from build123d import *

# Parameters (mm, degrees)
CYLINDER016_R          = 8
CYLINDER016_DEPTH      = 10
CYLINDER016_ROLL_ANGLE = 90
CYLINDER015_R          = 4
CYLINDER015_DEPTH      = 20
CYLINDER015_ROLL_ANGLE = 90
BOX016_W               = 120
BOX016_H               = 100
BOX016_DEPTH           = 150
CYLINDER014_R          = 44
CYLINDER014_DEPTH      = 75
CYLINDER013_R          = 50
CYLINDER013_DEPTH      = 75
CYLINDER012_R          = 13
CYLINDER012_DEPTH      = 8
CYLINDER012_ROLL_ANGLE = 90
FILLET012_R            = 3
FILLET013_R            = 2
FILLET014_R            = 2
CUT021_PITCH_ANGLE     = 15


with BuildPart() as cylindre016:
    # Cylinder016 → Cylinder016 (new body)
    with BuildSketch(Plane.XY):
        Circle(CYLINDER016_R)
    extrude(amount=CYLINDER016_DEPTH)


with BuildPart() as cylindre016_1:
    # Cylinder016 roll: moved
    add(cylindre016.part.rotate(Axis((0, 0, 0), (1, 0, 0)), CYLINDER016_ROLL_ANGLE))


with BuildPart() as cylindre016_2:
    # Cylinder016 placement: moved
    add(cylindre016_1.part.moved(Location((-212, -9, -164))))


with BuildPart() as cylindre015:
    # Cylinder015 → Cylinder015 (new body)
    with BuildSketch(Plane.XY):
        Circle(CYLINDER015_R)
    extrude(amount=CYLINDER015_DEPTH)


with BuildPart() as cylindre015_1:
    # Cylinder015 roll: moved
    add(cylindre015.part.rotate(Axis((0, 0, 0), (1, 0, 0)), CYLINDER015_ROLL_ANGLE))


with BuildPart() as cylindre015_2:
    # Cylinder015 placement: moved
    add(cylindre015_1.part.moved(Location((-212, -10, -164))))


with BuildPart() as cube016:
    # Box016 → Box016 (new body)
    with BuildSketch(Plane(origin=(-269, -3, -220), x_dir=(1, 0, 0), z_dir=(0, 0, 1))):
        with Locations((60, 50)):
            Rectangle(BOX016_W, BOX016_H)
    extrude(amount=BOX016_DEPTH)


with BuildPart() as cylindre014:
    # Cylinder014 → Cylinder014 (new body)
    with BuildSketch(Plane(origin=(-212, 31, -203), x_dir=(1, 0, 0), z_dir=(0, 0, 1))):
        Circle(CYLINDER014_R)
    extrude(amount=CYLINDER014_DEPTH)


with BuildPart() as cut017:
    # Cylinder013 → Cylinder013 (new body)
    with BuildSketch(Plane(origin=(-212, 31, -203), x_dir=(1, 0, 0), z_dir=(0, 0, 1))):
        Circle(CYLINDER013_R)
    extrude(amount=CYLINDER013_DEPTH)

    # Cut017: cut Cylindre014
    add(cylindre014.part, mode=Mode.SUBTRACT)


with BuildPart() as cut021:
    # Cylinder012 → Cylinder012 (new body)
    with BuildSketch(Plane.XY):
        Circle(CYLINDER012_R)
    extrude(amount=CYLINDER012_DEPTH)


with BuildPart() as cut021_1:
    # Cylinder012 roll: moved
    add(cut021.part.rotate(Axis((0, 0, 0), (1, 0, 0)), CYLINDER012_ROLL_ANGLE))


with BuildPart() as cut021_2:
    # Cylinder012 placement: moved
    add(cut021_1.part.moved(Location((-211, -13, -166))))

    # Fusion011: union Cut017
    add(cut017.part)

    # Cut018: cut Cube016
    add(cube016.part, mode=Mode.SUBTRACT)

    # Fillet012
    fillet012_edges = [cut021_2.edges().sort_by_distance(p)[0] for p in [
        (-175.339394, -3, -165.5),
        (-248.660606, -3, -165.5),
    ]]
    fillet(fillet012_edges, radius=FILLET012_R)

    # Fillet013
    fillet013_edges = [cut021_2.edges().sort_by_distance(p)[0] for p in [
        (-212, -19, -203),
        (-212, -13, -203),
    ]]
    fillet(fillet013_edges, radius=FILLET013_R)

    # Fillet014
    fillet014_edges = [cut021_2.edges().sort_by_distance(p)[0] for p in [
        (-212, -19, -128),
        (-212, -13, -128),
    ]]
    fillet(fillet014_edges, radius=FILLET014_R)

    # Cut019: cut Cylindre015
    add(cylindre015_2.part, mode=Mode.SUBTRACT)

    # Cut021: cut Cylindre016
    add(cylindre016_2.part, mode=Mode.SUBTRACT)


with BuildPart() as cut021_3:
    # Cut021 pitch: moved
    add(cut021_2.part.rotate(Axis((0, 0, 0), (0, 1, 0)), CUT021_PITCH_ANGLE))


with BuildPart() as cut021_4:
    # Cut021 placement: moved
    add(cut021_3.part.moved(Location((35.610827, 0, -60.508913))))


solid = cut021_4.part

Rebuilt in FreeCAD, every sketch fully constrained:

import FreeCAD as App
import Part
import Sketcher
Q = App.Units.Quantity


def edges_at(feature, points):
    """Names of the edges that pass closest to the given points."""
    edges = feature.Shape.Edges
    near = lambda p: min(range(len(edges)), key=lambda i: edges[i].distToShape(Part.Vertex(*p))[0])
    return sorted({f"Edge{near(p) + 1}" for p in points})


def add_polygon(sketch, points):
    """Adds a closed chain of lines whose ends are joined by coincident constraints."""
    first, n = sketch.GeometryCount, len(points)
    for a, b in zip(points, points[1:] + points[:1]):
        sketch.addGeometry(Part.LineSegment(App.Vector(*a, 0), App.Vector(*b, 0)), False)
    for i in range(n):
        sketch.addConstraint(Sketcher.Constraint("Coincident", first + i, 2, first + (i + 1) % n, 1))

doc = App.newDocument("Part")
body = doc.addObject("PartDesign::Body", "Body")

# Sketch on XY plane
sketch1 = body.newObject("Sketcher::SketchObject", "Sketch")
sketch1.AttachmentSupport = (doc.getObject("XY_Plane"), [""])
sketch1.MapMode = "FlatFace"
sketch1.addGeometry(Part.Circle(App.Vector(0, 0, 0), App.Vector(0, 0, 1), 8), False)
sketch1.addConstraint([
    Sketcher.Constraint("Coincident", 0, 3, -1, 1),
    Sketcher.Constraint("Diameter", 0, Q("16 mm")),
])
pad1 = body.newObject("PartDesign::Pad", "Pad")
pad1.Profile = sketch1
pad1.Length = 10
body2 = doc.addObject("PartDesign::Body", "Body001")
doc.recompute()

body.Placement = App.Placement(App.Vector(0, 0, 0), App.Rotation(App.Vector(1, 0, 0), 90))
boolean = body2.newObject("PartDesign::Boolean", "Boolean")
boolean.Type = "Fuse"
boolean.addObjects([body])
body3 = doc.addObject("PartDesign::Body", "Body002")
doc.recompute()

body2.Placement = App.Placement(App.Vector(-212, -9, -164), App.Rotation(App.Vector(0, 0, 1), 0))
boolean2 = body3.newObject("PartDesign::Boolean", "Boolean001")
boolean2.Type = "Fuse"
boolean2.addObjects([body2])
body4 = doc.addObject("PartDesign::Body", "Body003")

# Sketch on XY plane
sketch2 = body4.newObject("Sketcher::SketchObject", "Sketch001")
sketch2.AttachmentSupport = (doc.getObject("XY_Plane003"), [""])
sketch2.MapMode = "FlatFace"
sketch2.addGeometry(Part.Circle(App.Vector(0, 0, 0), App.Vector(0, 0, 1), 4), False)
sketch2.addConstraint([
    Sketcher.Constraint("Coincident", 0, 3, -1, 1),
    Sketcher.Constraint("Diameter", 0, Q("8 mm")),
])
pad2 = body4.newObject("PartDesign::Pad", "Pad001")
pad2.Profile = sketch2
pad2.Length = 20
body5 = doc.addObject("PartDesign::Body", "Body004")
doc.recompute()

body4.Placement = App.Placement(App.Vector(0, 0, 0), App.Rotation(App.Vector(1, 0, 0), 90))
boolean3 = body5.newObject("PartDesign::Boolean", "Boolean002")
boolean3.Type = "Fuse"
boolean3.addObjects([body4])
body6 = doc.addObject("PartDesign::Body", "Body005")
doc.recompute()

body5.Placement = App.Placement(App.Vector(-212, -10, -164), App.Rotation(App.Vector(0, 0, 1), 0))
boolean4 = body6.newObject("PartDesign::Boolean", "Boolean003")
boolean4.Type = "Fuse"
boolean4.addObjects([body5])
body7 = doc.addObject("PartDesign::Body", "Body006")

# Sketch on XY plane
sketch3 = body7.newObject("Sketcher::SketchObject", "Sketch002")
sketch3.AttachmentSupport = (doc.getObject("XY_Plane006"), [""])
sketch3.MapMode = "FlatFace"
sketch3.AttachmentOffset = App.Placement(App.Vector(0, 0, -220), App.Rotation())
add_polygon(sketch3, [(-269, 97), (-269, -3), (-149, -3), (-149, 97)])  # lines 0-3
sketch3.addConstraint([
    Sketcher.Constraint("Vertical", 0),
    Sketcher.Constraint("Horizontal", 1),
    Sketcher.Constraint("Vertical", 2),
    Sketcher.Constraint("Horizontal", 3),
    Sketcher.Constraint("DistanceX", 1, 1, 1, 2, Q("120 mm")),
    Sketcher.Constraint("DistanceY", 0, 2, 0, 1, Q("100 mm")),
    Sketcher.Constraint("DistanceX", 0, 2, -1, 1, Q("269 mm")),
    Sketcher.Constraint("DistanceY", 0, 2, -1, 1, Q("3 mm")),
])
pad3 = body7.newObject("PartDesign::Pad", "Pad002")
pad3.Profile = sketch3
pad3.Length = 150
body8 = doc.addObject("PartDesign::Body", "Body007")

# Sketch on XY plane
sketch4 = body8.newObject("Sketcher::SketchObject", "Sketch003")
sketch4.AttachmentSupport = (doc.getObject("XY_Plane007"), [""])
sketch4.MapMode = "FlatFace"
sketch4.AttachmentOffset = App.Placement(App.Vector(0, 0, -203), App.Rotation())
sketch4.addGeometry(Part.Circle(App.Vector(-212, 31, 0), App.Vector(0, 0, 1), 44), False)
sketch4.addConstraint([
    Sketcher.Constraint("Diameter", 0, Q("88 mm")),
    Sketcher.Constraint("DistanceX", 0, 3, -1, 1, Q("212 mm")),
    Sketcher.Constraint("DistanceY", -1, 1, 0, 3, Q("31 mm")),
])
pad4 = body8.newObject("PartDesign::Pad", "Pad003")
pad4.Profile = sketch4
pad4.Length = 75
body9 = doc.addObject("PartDesign::Body", "Body008")

# Sketch on XY plane
sketch5 = body9.newObject("Sketcher::SketchObject", "Sketch004")
sketch5.AttachmentSupport = (doc.getObject("XY_Plane008"), [""])
sketch5.MapMode = "FlatFace"
sketch5.AttachmentOffset = App.Placement(App.Vector(0, 0, -203), App.Rotation())
sketch5.addGeometry(Part.Circle(App.Vector(-212, 31, 0), App.Vector(0, 0, 1), 50), False)
sketch5.addConstraint([
    Sketcher.Constraint("Diameter", 0, Q("100 mm")),
    Sketcher.Constraint("DistanceX", 0, 3, -1, 1, Q("212 mm")),
    Sketcher.Constraint("DistanceY", -1, 1, 0, 3, Q("31 mm")),
])
pad5 = body9.newObject("PartDesign::Pad", "Pad004")
pad5.Profile = sketch5
pad5.Length = 75
doc.recompute()

boolean5 = body9.newObject("PartDesign::Boolean", "Boolean004")
boolean5.Type = "Cut"
boolean5.addObjects([body8])
body10 = doc.addObject("PartDesign::Body", "Body009")

# Sketch on XY plane
sketch6 = body10.newObject("Sketcher::SketchObject", "Sketch005")
sketch6.AttachmentSupport = (doc.getObject("XY_Plane009"), [""])
sketch6.MapMode = "FlatFace"
sketch6.addGeometry(Part.Circle(App.Vector(0, 0, 0), App.Vector(0, 0, 1), 13), False)
sketch6.addConstraint([
    Sketcher.Constraint("Coincident", 0, 3, -1, 1),
    Sketcher.Constraint("Diameter", 0, Q("26 mm")),
])
pad6 = body10.newObject("PartDesign::Pad", "Pad005")
pad6.Profile = sketch6
pad6.Length = 8
body11 = doc.addObject("PartDesign::Body", "Body010")
doc.recompute()

body10.Placement = App.Placement(App.Vector(0, 0, 0), App.Rotation(App.Vector(1, 0, 0), 90))
boolean6 = body11.newObject("PartDesign::Boolean", "Boolean005")
boolean6.Type = "Fuse"
boolean6.addObjects([body10])
body12 = doc.addObject("PartDesign::Body", "Body011")
doc.recompute()

body11.Placement = App.Placement(App.Vector(-211, -13, -166), App.Rotation(App.Vector(0, 0, 1), 0))
boolean7 = body12.newObject("PartDesign::Boolean", "Boolean006")
boolean7.Type = "Fuse"
boolean7.addObjects([body11])
doc.recompute()

boolean8 = body12.newObject("PartDesign::Boolean", "Boolean007")
boolean8.Type = "Fuse"
boolean8.addObjects([body9])
doc.recompute()

boolean9 = body12.newObject("PartDesign::Boolean", "Boolean008")
boolean9.Type = "Cut"
boolean9.addObjects([body7])
doc.recompute()

fillet = body12.newObject("PartDesign::Fillet", "Fillet")
fillet.Base = (boolean9, edges_at(boolean9, [(-175.339, -3, -165.5), (-248.661, -3, -165.5)]))
fillet.Radius = 3
doc.recompute()

fillet2 = body12.newObject("PartDesign::Fillet", "Fillet001")
fillet2.Base = (fillet, edges_at(fillet, [(-212, -19, -203), (-212, -13, -203)]))
fillet2.Radius = 2
doc.recompute()

fillet3 = body12.newObject("PartDesign::Fillet", "Fillet002")
fillet3.Base = (fillet2, edges_at(fillet2, [(-212, -19, -128), (-212, -13, -128)]))
fillet3.Radius = 2
doc.recompute()

boolean10 = body12.newObject("PartDesign::Boolean", "Boolean009")
boolean10.Type = "Cut"
boolean10.addObjects([body6])
doc.recompute()

boolean11 = body12.newObject("PartDesign::Boolean", "Boolean010")
boolean11.Type = "Cut"
boolean11.addObjects([body3])
body13 = doc.addObject("PartDesign::Body", "Body012")
doc.recompute()

body12.Placement = App.Placement(App.Vector(0, 0, 0), App.Rotation(App.Vector(0, 1, 0), 15))
boolean12 = body13.newObject("PartDesign::Boolean", "Boolean011")
boolean12.Type = "Fuse"
boolean12.addObjects([body12])
body14 = doc.addObject("PartDesign::Body", "Body013")
doc.recompute()

body13.Placement = App.Placement(App.Vector(35.610827, 0, -60.508913), App.Rotation(App.Vector(0, 0, 1), 0))
boolean13 = body14.newObject("PartDesign::Boolean", "Boolean012")
boolean13.Type = "Fuse"
boolean13.addObjects([body13])

doc.recompute()
